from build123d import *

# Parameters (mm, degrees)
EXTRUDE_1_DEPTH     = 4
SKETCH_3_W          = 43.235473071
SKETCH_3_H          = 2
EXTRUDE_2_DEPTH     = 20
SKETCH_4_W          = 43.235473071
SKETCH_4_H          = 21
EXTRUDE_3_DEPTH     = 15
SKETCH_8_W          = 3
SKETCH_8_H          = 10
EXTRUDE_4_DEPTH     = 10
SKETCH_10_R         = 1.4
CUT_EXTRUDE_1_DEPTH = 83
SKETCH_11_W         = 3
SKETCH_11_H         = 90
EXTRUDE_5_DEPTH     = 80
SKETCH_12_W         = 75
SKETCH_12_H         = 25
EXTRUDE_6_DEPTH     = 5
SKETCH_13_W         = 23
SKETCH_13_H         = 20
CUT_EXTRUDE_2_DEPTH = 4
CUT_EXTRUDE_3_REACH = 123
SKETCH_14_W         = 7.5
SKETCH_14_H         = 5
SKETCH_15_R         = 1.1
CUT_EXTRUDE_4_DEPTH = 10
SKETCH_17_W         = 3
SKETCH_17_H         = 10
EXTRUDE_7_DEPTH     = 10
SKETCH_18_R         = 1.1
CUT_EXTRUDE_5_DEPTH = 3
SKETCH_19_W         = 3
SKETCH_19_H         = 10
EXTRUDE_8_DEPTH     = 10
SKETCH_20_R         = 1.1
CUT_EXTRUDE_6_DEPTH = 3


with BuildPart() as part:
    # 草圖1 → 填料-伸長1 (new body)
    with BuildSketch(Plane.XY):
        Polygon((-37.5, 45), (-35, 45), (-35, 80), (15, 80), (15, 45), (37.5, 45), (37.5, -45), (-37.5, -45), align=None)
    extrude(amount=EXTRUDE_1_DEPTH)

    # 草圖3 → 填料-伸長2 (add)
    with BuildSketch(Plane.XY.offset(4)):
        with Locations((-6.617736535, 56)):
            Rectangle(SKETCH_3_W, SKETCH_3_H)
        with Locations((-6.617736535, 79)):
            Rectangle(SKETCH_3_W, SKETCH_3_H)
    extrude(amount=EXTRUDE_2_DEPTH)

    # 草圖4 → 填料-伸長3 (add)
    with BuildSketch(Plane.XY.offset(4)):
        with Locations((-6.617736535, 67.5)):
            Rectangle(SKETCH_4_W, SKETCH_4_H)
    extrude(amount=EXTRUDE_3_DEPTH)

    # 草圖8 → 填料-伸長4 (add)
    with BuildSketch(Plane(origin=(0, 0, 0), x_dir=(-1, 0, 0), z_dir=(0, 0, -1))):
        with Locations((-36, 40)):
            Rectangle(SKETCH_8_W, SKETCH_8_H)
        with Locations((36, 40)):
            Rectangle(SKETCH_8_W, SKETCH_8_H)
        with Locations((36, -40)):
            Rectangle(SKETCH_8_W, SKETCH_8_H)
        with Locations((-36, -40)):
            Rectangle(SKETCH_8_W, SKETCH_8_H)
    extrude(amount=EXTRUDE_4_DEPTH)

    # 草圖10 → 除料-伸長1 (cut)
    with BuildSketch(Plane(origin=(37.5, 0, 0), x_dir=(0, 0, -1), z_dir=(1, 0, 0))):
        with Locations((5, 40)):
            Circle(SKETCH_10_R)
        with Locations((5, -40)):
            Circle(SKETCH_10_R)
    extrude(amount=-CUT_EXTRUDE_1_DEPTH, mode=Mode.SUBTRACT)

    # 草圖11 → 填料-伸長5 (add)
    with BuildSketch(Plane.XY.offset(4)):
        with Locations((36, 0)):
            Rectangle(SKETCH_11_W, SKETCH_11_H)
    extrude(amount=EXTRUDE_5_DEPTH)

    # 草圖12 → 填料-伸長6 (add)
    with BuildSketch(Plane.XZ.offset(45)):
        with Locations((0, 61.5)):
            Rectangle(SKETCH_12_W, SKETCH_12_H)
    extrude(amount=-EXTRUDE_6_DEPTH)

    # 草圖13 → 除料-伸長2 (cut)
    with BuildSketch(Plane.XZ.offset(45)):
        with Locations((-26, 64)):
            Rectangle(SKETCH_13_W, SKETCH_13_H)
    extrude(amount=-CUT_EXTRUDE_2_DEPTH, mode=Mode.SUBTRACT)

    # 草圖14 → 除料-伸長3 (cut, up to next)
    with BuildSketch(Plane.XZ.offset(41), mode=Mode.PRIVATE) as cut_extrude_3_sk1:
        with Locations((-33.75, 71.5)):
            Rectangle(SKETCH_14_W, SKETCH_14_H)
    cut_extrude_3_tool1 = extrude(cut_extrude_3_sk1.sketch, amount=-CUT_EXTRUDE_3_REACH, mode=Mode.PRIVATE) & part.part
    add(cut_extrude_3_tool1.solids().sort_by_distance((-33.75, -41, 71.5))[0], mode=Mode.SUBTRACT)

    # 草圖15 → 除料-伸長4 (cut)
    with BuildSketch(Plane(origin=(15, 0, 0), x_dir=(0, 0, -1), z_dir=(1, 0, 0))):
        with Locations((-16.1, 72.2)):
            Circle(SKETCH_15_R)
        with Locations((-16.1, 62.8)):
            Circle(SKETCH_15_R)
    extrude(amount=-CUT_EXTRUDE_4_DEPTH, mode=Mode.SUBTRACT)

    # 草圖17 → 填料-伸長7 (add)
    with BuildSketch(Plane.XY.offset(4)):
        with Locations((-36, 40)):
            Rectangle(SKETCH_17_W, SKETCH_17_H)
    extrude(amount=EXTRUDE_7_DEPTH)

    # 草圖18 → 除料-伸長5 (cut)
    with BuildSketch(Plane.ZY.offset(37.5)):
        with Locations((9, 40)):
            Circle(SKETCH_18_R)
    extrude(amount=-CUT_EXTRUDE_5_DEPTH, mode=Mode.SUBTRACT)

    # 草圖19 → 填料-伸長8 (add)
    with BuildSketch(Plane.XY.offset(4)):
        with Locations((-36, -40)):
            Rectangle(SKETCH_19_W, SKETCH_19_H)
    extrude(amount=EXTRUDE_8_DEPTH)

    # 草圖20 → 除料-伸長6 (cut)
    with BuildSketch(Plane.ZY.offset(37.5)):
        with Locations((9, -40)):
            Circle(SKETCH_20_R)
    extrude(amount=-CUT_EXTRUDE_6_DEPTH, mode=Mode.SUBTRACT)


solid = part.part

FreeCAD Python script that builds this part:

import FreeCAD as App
import Part
import Sketcher

V = App.Vector


def add_polygon(sketch, points):
    """Adds a closed chain of lines whose ends are joined by coincident constraints."""
    first, n = sketch.GeometryCount, len(points)
    for a, b in zip(points, points[1:] + points[:1]):
        sketch.addGeometry(Part.LineSegment(App.Vector(*a, 0), App.Vector(*b, 0)), False)
    for i in range(n):
        sketch.addConstraint(Sketcher.Constraint("Coincident", first + i, 2, first + (i + 1) % n, 1))

doc = App.newDocument("Part")
body = doc.addObject("PartDesign::Body", "Body")

sketch1 = doc.addObject("Sketcher::SketchObject", "Sketch")
body.addObject(sketch1)
sketch1.AttachmentSupport = (doc.XY_Plane, [""])
sketch1.MapMode = "FlatFace"
add_polygon(sketch1, [(-35, 45), (-37.5, 45), (-37.5, -45), (37.5, -45), (37.5, 45), (15, 45), (15, 80), (-35, 80)])
sketch1.addConstraint([
    Sketcher.Constraint("Horizontal", 0),
    Sketcher.Constraint("Vertical", 1),
    Sketcher.Constraint("Horizontal", 2),
    Sketcher.Constraint("Vertical", 3),
    Sketcher.Constraint("Horizontal", 4),
    Sketcher.Constraint("Vertical", 5),
    Sketcher.Constraint("Horizontal", 6),
    Sketcher.Constraint("Vertical", 7),
    Sketcher.Constraint("Symmetric", 0, 2, 2, 2, -1, 1),
    Sketcher.Constraint("Horizontal", 0, 2, 3, 2),
    Sketcher.Constraint("DistanceX", 2, 1, 2, 2, 75.0),
    Sketcher.Constraint("DistanceX", 6, 2, 6, 1, 50.0),
    Sketcher.Constraint("DistanceY", 1, 2, 1, 1, 90.0),
    Sketcher.Constraint("DistanceY", 5, 1, 5, 2, 35.0),
    Sketcher.Constraint("DistanceX", 0, 2, 0, 1, 2.5),
])
pad1 = doc.addObject("PartDesign::Pad", "Pad")
body.addObject(pad1)
pad1.Profile = sketch1
pad1.Length = 4

sketch2 = doc.addObject("Sketcher::SketchObject", "Sketch001")
body.addObject(sketch2)
sketch2.AttachmentSupport = (doc.XY_Plane, [""])
sketch2.MapMode = "FlatFace"
sketch2.AttachmentOffset = App.Placement(V(0, 0, 4), App.Rotation())
add_polygon(sketch2, [(-28.235473, 57), (-28.235473, 55), (15, 55), (15, 57)])
add_polygon(sketch2, [(-28.235473, 80), (-28.235473, 78), (15, 78), (15, 80)])
sketch2.addConstraint([
    Sketcher.Constraint("Vertical", 0),
    Sketcher.Constraint("Horizontal", 1),
    Sketcher.Constraint("Vertical", 2),
    Sketcher.Constraint("Horizontal", 3),
    Sketcher.Constraint("Vertical", 4),
    Sketcher.Constraint("Horizontal", 5),
    Sketcher.Constraint("Vertical", 6),
    Sketcher.Constraint("Horizontal", 7),
    Sketcher.Constraint("Vertical", 3, 2, 4, 2),
    Sketcher.Constraint("Vertical", 2, 2, 5, 2),
    Sketcher.Constraint("Equal", 2, 4),
    Sketcher.Constraint("DistanceY", 0, 2, 0, 1, 2.0),
    Sketcher.Constraint("DistanceY", -1, 1, 0, 2, 55.0),
    Sketcher.Constraint("DistanceX", -1, 1, 1, 2, 15.0),
    Sketcher.Constraint("DistanceY", -1, 1, 4, 2, 78.0),
    Sketcher.Constraint("DistanceX", 1, 1, 1, 2, 43.235473),
])
pad2 = doc.addObject("PartDesign::Pad", "Pad001")
body.addObject(pad2)
pad2.Profile = sketch2
pad2.Length = 20

sketch3 = doc.addObject("Sketcher::SketchObject", "Sketch002")
body.addObject(sketch3)
sketch3.AttachmentSupport = (doc.XY_Plane, [""])
sketch3.MapMode = "FlatFace"
sketch3.AttachmentOffset = App.Placement(V(0, 0, 4), App.Rotation())
add_polygon(sketch3, [(-28.235473, 78), (-28.235473, 57), (15, 57), (15, 78)])
sketch3.addConstraint([
    Sketcher.Constraint("Vertical", 0),
    Sketcher.Constraint("Horizontal", 1),
    Sketcher.Constraint("Vertical", 2),
    Sketcher.Constraint("Horizontal", 3),
    Sketcher.Constraint("DistanceY", 0, 2, 0, 1, 21.0),
    Sketcher.Constraint("DistanceY", -1, 1, 0, 2, 57.0),
    Sketcher.Constraint("DistanceX", -1, 1, 1, 2, 15.0),
    Sketcher.Constraint("DistanceX", 1, 1, 1, 2, 43.235473),
])
pad3 = doc.addObject("PartDesign::Pad", "Pad002")
body.addObject(pad3)
pad3.Profile = sketch3
pad3.Length = 15

sketch4 = doc.addObject("Sketcher::SketchObject", "Sketch003")
body.addObject(sketch4)
sketch4.AttachmentSupport = (doc.XY_Plane, [""])
sketch4.MapMode = "FlatFace"
add_polygon(sketch4, [(37.5, 45), (37.5, 35), (34.5, 35), (34.5, 45)])
add_polygon(sketch4, [(-34.5, 45), (-34.5, 35), (-37.5, 35), (-37.5, 45)])
add_polygon(sketch4, [(-34.5, -35), (-34.5, -45), (-37.5, -45), (-37.5, -35)])
add_polygon(sketch4, [(37.5, -35), (37.5, -45), (34.5, -45), (34.5, -35)])
sketch4.addConstraint([
    Sketcher.Constraint("Vertical", 0),
    Sketcher.Constraint("Horizontal", 1),
    Sketcher.Constraint("Vertical", 2),
    Sketcher.Constraint("Horizontal", 3),
    Sketcher.Constraint("Vertical", 4),
    Sketcher.Constraint("Horizontal", 5),
    Sketcher.Constraint("Vertical", 6),
    Sketcher.Constraint("Horizontal", 7),
    Sketcher.Constraint("Vertical", 8),
    Sketcher.Constraint("Horizontal", 9),
    Sketcher.Constraint("Vertical", 10),
    Sketcher.Constraint("Horizontal", 11),
    Sketcher.Constraint("Vertical", 12),
    Sketcher.Constraint("Horizontal", 13),
    Sketcher.Constraint("Vertical", 14),
    Sketcher.Constraint("Horizontal", 15),
    Sketcher.Constraint("Symmetric", 2, 2, 8, 2, -1, 1),
    Sketcher.Constraint("Symmetric", 0, 2, 10, 2, -1, 1),
    Sketcher.Constraint("Symmetric", 6, 2, 12, 2, -1, 1),
    Sketcher.Constraint("Symmetric", 4, 2, 14, 2, -1, 1),
    Sketcher.Constraint("Symmetric", 1, 2, 4, 2, -2),
    Sketcher.Constraint("Symmetric", 3, 2, 6, 2, -2),
    Sketcher.Constraint("DistanceX", 1, 2, 1, 1, 3.0),
    Sketcher.Constraint("DistanceY", 0, 2, 0, 1, 10.0),
    Sketcher.Constraint("DistanceY", -1, 1, 0, 2, 35.0),
    Sketcher.Constraint("DistanceX", 4, 2, 1, 2, 69.0),
])
pad4 = doc.addObject("PartDesign::Pad", "Pad003")
body.addObject(pad4)
pad4.Profile = sketch4
pad4.Length = 10
pad4.Reversed = True

sketch5 = doc.addObject("Sketcher::SketchObject", "Sketch004")
body.addObject(sketch5)
sketch5.AttachmentSupport = (doc.YZ_Plane, [""])
sketch5.MapMode = "FlatFace"
sketch5.AttachmentOffset = App.Placement(V(0, 0, 37.5), App.Rotation())
sketch5.addGeometry([
    Part.Circle(V(40, -5, 0), V(0, 0, 1), 1.4),
    Part.Circle(V(-40, -5, 0), V(0, 0, 1), 1.4),
], False)
sketch5.addConstraint([
    Sketcher.Constraint("Equal", 0, 1),
    Sketcher.Constraint("Symmetric", 0, 3, 1, 3, -2),
    Sketcher.Constraint("Diameter", 0, 2.8),
    Sketcher.Constraint("DistanceX", -1, 1, 0, 3, 40.0),
    Sketcher.Constraint("DistanceY", 0, 3, -1, 1, 5.0),
])
pocket1 = doc.addObject("PartDesign::Pocket", "Pocket")
body.addObject(pocket1)
pocket1.Profile = sketch5
pocket1.Length = 83

sketch6 = doc.addObject("Sketcher::SketchObject", "Sketch005")
body.addObject(sketch6)
sketch6.AttachmentSupport = (doc.XY_Plane, [""])
sketch6.MapMode = "FlatFace"
sketch6.AttachmentOffset = App.Placement(V(0, 0, 4), App.Rotation())
add_polygon(sketch6, [(34.5, 45), (34.5, -45), (37.5, -45), (37.5, 45)])
sketch6.addConstraint([
    Sketcher.Constraint("Vertical", 0),
    Sketcher.Constraint("Horizontal", 1),
    Sketcher.Constraint("Vertical", 2),
    Sketcher.Constraint("Horizontal", 3),
    Sketcher.Constraint("DistanceX", 1, 1, 1, 2, 3.0),
    Sketcher.Constraint("DistanceY", 0, 2, 0, 1, 90.0),
    Sketcher.Constraint("DistanceY", 0, 2, -1, 1, 45.0),
    Sketcher.Constraint("DistanceX", -1, 1, 0, 2, 34.5),
])
pad5 = doc.addObject("PartDesign::Pad", "Pad004")
body.addObject(pad5)
pad5.Profile = sketch6
pad5.Length = 80

sketch7 = doc.addObject("Sketcher::SketchObject", "Sketch006")
body.addObject(sketch7)
sketch7.AttachmentSupport = (doc.XZ_Plane, [""])
sketch7.MapMode = "FlatFace"
sketch7.AttachmentOffset = App.Placement(V(0, 0, 45), App.Rotation())
add_polygon(sketch7, [(-37.5, 74), (-37.5, 49), (37.5, 49), (37.5, 74)])
sketch7.addConstraint([
    Sketcher.Constraint("Vertical", 0),
    Sketcher.Constraint("Horizontal", 1),
    Sketcher.Constraint("Vertical", 2),
    Sketcher.Constraint("Horizontal", 3),
    Sketcher.Constraint("DistanceX", 1, 1, 1, 2, 75.0),
    Sketcher.Constraint("DistanceY", 0, 2, 0, 1, 25.0),
    Sketcher.Constraint("DistanceY", -1, 1, 0, 2, 49.0),
    Sketcher.Constraint("DistanceX", 0, 2, -1, 1, 37.5),
])
pad6 = doc.addObject("PartDesign::Pad", "Pad005")
body.addObject(pad6)
pad6.Profile = sketch7
pad6.Length = 5
pad6.Reversed = True

sketch8 = doc.addObject("Sketcher::SketchObject", "Sketch007")
body.addObject(sketch8)
sketch8.AttachmentSupport = (doc.XZ_Plane, [""])
sketch8.MapMode = "FlatFace"
sketch8.AttachmentOffset = App.Placement(V(0, 0, 45), App.Rotation())
add_polygon(sketch8, [(-37.5, 74), (-37.5, 54), (-14.5, 54), (-14.5, 74)])
sketch8.addConstraint([
    Sketcher.Constraint("Vertical", 0),
    Sketcher.Constraint("Horizontal", 1),
    Sketcher.Constraint("Vertical", 2),
    Sketcher.Constraint("Horizontal", 3),
    Sketcher.Constraint("DistanceX", 1, 1, 1, 2, 23.0),
    Sketcher.Constraint("DistanceY", 0, 2, 0, 1, 20.0),
    Sketcher.Constraint("DistanceY", -1, 1, 0, 2, 54.0),
    Sketcher.Constraint("DistanceX", 0, 2, -1, 1, 37.5),
])
pocket2 = doc.addObject("PartDesign::Pocket", "Pocket001")
body.addObject(pocket2)
pocket2.Profile = sketch8
pocket2.Length = 4

sketch9 = doc.addObject("Sketcher::SketchObject", "Sketch008")
body.addObject(sketch9)
sketch9.AttachmentSupport = (doc.XZ_Plane, [""])
sketch9.MapMode = "FlatFace"
sketch9.AttachmentOffset = App.Placement(V(0, 0, 41), App.Rotation())
add_polygon(sketch9, [(-37.5, 74), (-37.5, 69), (-30, 69), (-30, 74)])
sketch9.addConstraint([
    Sketcher.Constraint("Vertical", 0),
    Sketcher.Constraint("Horizontal", 1),
    Sketcher.Constraint("Vertical", 2),
    Sketcher.Constraint("Horizontal", 3),
    Sketcher.Constraint("DistanceY", 0, 2, 0, 1, 5.0),
    Sketcher.Constraint("DistanceX", 1, 1, 1, 2, 7.5),
    Sketcher.Constraint("DistanceY", -1, 1, 0, 2, 69.0),
    Sketcher.Constraint("DistanceX", 1, 2, -1, 1, 30.0),
])
pocket3 = doc.addObject("PartDesign::Pocket", "Pocket002")
body.addObject(pocket3)
pocket3.Profile = sketch9
pocket3.Type = "UpToFirst"

sketch10 = doc.addObject("Sketcher::SketchObject", "Sketch009")
body.addObject(sketch10)
sketch10.AttachmentSupport = (doc.YZ_Plane, [""])
sketch10.MapMode = "FlatFace"
sketch10.AttachmentOffset = App.Placement(V(0, 0, 15), App.Rotation())
sketch10.addGeometry([
    Part.Circle(V(72.2, 16.1, 0), V(0, 0, 1), 1.1),
    Part.Circle(V(62.8, 16.1, 0), V(0, 0, 1), 1.1),
], False)
sketch10.addConstraint([
    Sketcher.Constraint("Equal", 0, 1),
    Sketcher.Constraint("Horizontal", 0, 3, 1, 3),
    Sketcher.Constraint("Diameter", 0, 2.2),
    Sketcher.Constraint("DistanceX", -1, 1, 0, 3, 72.2),
    Sketcher.Constraint("DistanceY", -1, 1, 0, 3, 16.1),
    Sketcher.Constraint("DistanceX", -1, 1, 1, 3, 62.8),
])
pocket4 = doc.addObject("PartDesign::Pocket", "Pocket003")
body.addObject(pocket4)
pocket4.Profile = sketch10
pocket4.Length = 10

sketch11 = doc.addObject("Sketcher::SketchObject", "Sketch010")
body.addObject(sketch11)
sketch11.AttachmentSupport = (doc.XY_Plane, [""])
sketch11.MapMode = "FlatFace"
sketch11.AttachmentOffset = App.Placement(V(0, 0, 4), App.Rotation())
add_polygon(sketch11, [(-37.5, 45), (-37.5, 35), (-34.5, 35), (-34.5, 45)])
sketch11.addConstraint([
    Sketcher.Constraint("Vertical", 0),
    Sketcher.Constraint("Horizontal", 1),
    Sketcher.Constraint("Vertical", 2),
    Sketcher.Constraint("Horizontal", 3),
    Sketcher.Constraint("DistanceX", 1, 1, 1, 2, 3.0),
    Sketcher.Constraint("DistanceY", 0, 2, 0, 1, 10.0),
    Sketcher.Constraint("DistanceY", -1, 1, 0, 2, 35.0),
    Sketcher.Constraint("DistanceX", 0, 2, -1, 1, 37.5),
])
pad7 = doc.addObject("PartDesign::Pad", "Pad006")
body.addObject(pad7)
pad7.Profile = sketch11
pad7.Length = 10

sketch12 = doc.addObject("Sketcher::SketchObject", "Sketch011")
body.addObject(sketch12)
sketch12.AttachmentSupport = (doc.YZ_Plane, [""])
sketch12.MapMode = "FlatFace"
sketch12.AttachmentOffset = App.Placement(V(0, 0, -37.5), App.Rotation())
sketch12.addGeometry(Part.Circle(V(40, 9, 0), V(0, 0, 1), 1.1), False)
sketch12.addConstraint([
    Sketcher.Constraint("Diameter", 0, 2.2),
    Sketcher.Constraint("DistanceX", -1, 1, 0, 3, 40.0),
    Sketcher.Constraint("DistanceY", -1, 1, 0, 3, 9.0),
])
pocket5 = doc.addObject("PartDesign::Pocket", "Pocket004")
body.addObject(pocket5)
pocket5.Profile = sketch12
pocket5.Length = 3
pocket5.Reversed = True

sketch13 = doc.addObject("Sketcher::SketchObject", "Sketch012")
body.addObject(sketch13)
sketch13.AttachmentSupport = (doc.XY_Plane, [""])
sketch13.MapMode = "FlatFace"
sketch13.AttachmentOffset = App.Placement(V(0, 0, 4), App.Rotation())
add_polygon(sketch13, [(-37.5, -35), (-37.5, -45), (-34.5, -45), (-34.5, -35)])
sketch13.addConstraint([
    Sketcher.Constraint("Vertical", 0),
    Sketcher.Constraint("Horizontal", 1),
    Sketcher.Constraint("Vertical", 2),
    Sketcher.Constraint("Horizontal", 3),
    Sketcher.Constraint("DistanceX", 1, 1, 1, 2, 3.0),
    Sketcher.Constraint("DistanceY", 0, 2, 0, 1, 10.0),
    Sketcher.Constraint("DistanceY", 0, 2, -1, 1, 45.0),
    Sketcher.Constraint("DistanceX", 0, 2, -1, 1, 37.5),
])
pad8 = doc.addObject("PartDesign::Pad", "Pad007")
body.addObject(pad8)
pad8.Profile = sketch13
pad8.Length = 10

sketch14 = doc.addObject("Sketcher::SketchObject", "Sketch013")
body.addObject(sketch14)
sketch14.AttachmentSupport = (doc.YZ_Plane, [""])
sketch14.MapMode = "FlatFace"
sketch14.AttachmentOffset = App.Placement(V(0, 0, -37.5), App.Rotation())
sketch14.addGeometry(Part.Circle(V(-40, 9, 0), V(0, 0, 1), 1.1), False)
sketch14.addConstraint([
    Sketcher.Constraint("Diameter", 0, 2.2),
    Sketcher.Constraint("DistanceX", 0, 3, -1, 1, 40.0),
    Sketcher.Constraint("DistanceY", -1, 1, 0, 3, 9.0),
])
pocket6 = doc.addObject("PartDesign::Pocket", "Pocket005")
body.addObject(pocket6)
pocket6.Profile = sketch14
pocket6.Length = 3
pocket6.Reversed = True

doc.recompute()
